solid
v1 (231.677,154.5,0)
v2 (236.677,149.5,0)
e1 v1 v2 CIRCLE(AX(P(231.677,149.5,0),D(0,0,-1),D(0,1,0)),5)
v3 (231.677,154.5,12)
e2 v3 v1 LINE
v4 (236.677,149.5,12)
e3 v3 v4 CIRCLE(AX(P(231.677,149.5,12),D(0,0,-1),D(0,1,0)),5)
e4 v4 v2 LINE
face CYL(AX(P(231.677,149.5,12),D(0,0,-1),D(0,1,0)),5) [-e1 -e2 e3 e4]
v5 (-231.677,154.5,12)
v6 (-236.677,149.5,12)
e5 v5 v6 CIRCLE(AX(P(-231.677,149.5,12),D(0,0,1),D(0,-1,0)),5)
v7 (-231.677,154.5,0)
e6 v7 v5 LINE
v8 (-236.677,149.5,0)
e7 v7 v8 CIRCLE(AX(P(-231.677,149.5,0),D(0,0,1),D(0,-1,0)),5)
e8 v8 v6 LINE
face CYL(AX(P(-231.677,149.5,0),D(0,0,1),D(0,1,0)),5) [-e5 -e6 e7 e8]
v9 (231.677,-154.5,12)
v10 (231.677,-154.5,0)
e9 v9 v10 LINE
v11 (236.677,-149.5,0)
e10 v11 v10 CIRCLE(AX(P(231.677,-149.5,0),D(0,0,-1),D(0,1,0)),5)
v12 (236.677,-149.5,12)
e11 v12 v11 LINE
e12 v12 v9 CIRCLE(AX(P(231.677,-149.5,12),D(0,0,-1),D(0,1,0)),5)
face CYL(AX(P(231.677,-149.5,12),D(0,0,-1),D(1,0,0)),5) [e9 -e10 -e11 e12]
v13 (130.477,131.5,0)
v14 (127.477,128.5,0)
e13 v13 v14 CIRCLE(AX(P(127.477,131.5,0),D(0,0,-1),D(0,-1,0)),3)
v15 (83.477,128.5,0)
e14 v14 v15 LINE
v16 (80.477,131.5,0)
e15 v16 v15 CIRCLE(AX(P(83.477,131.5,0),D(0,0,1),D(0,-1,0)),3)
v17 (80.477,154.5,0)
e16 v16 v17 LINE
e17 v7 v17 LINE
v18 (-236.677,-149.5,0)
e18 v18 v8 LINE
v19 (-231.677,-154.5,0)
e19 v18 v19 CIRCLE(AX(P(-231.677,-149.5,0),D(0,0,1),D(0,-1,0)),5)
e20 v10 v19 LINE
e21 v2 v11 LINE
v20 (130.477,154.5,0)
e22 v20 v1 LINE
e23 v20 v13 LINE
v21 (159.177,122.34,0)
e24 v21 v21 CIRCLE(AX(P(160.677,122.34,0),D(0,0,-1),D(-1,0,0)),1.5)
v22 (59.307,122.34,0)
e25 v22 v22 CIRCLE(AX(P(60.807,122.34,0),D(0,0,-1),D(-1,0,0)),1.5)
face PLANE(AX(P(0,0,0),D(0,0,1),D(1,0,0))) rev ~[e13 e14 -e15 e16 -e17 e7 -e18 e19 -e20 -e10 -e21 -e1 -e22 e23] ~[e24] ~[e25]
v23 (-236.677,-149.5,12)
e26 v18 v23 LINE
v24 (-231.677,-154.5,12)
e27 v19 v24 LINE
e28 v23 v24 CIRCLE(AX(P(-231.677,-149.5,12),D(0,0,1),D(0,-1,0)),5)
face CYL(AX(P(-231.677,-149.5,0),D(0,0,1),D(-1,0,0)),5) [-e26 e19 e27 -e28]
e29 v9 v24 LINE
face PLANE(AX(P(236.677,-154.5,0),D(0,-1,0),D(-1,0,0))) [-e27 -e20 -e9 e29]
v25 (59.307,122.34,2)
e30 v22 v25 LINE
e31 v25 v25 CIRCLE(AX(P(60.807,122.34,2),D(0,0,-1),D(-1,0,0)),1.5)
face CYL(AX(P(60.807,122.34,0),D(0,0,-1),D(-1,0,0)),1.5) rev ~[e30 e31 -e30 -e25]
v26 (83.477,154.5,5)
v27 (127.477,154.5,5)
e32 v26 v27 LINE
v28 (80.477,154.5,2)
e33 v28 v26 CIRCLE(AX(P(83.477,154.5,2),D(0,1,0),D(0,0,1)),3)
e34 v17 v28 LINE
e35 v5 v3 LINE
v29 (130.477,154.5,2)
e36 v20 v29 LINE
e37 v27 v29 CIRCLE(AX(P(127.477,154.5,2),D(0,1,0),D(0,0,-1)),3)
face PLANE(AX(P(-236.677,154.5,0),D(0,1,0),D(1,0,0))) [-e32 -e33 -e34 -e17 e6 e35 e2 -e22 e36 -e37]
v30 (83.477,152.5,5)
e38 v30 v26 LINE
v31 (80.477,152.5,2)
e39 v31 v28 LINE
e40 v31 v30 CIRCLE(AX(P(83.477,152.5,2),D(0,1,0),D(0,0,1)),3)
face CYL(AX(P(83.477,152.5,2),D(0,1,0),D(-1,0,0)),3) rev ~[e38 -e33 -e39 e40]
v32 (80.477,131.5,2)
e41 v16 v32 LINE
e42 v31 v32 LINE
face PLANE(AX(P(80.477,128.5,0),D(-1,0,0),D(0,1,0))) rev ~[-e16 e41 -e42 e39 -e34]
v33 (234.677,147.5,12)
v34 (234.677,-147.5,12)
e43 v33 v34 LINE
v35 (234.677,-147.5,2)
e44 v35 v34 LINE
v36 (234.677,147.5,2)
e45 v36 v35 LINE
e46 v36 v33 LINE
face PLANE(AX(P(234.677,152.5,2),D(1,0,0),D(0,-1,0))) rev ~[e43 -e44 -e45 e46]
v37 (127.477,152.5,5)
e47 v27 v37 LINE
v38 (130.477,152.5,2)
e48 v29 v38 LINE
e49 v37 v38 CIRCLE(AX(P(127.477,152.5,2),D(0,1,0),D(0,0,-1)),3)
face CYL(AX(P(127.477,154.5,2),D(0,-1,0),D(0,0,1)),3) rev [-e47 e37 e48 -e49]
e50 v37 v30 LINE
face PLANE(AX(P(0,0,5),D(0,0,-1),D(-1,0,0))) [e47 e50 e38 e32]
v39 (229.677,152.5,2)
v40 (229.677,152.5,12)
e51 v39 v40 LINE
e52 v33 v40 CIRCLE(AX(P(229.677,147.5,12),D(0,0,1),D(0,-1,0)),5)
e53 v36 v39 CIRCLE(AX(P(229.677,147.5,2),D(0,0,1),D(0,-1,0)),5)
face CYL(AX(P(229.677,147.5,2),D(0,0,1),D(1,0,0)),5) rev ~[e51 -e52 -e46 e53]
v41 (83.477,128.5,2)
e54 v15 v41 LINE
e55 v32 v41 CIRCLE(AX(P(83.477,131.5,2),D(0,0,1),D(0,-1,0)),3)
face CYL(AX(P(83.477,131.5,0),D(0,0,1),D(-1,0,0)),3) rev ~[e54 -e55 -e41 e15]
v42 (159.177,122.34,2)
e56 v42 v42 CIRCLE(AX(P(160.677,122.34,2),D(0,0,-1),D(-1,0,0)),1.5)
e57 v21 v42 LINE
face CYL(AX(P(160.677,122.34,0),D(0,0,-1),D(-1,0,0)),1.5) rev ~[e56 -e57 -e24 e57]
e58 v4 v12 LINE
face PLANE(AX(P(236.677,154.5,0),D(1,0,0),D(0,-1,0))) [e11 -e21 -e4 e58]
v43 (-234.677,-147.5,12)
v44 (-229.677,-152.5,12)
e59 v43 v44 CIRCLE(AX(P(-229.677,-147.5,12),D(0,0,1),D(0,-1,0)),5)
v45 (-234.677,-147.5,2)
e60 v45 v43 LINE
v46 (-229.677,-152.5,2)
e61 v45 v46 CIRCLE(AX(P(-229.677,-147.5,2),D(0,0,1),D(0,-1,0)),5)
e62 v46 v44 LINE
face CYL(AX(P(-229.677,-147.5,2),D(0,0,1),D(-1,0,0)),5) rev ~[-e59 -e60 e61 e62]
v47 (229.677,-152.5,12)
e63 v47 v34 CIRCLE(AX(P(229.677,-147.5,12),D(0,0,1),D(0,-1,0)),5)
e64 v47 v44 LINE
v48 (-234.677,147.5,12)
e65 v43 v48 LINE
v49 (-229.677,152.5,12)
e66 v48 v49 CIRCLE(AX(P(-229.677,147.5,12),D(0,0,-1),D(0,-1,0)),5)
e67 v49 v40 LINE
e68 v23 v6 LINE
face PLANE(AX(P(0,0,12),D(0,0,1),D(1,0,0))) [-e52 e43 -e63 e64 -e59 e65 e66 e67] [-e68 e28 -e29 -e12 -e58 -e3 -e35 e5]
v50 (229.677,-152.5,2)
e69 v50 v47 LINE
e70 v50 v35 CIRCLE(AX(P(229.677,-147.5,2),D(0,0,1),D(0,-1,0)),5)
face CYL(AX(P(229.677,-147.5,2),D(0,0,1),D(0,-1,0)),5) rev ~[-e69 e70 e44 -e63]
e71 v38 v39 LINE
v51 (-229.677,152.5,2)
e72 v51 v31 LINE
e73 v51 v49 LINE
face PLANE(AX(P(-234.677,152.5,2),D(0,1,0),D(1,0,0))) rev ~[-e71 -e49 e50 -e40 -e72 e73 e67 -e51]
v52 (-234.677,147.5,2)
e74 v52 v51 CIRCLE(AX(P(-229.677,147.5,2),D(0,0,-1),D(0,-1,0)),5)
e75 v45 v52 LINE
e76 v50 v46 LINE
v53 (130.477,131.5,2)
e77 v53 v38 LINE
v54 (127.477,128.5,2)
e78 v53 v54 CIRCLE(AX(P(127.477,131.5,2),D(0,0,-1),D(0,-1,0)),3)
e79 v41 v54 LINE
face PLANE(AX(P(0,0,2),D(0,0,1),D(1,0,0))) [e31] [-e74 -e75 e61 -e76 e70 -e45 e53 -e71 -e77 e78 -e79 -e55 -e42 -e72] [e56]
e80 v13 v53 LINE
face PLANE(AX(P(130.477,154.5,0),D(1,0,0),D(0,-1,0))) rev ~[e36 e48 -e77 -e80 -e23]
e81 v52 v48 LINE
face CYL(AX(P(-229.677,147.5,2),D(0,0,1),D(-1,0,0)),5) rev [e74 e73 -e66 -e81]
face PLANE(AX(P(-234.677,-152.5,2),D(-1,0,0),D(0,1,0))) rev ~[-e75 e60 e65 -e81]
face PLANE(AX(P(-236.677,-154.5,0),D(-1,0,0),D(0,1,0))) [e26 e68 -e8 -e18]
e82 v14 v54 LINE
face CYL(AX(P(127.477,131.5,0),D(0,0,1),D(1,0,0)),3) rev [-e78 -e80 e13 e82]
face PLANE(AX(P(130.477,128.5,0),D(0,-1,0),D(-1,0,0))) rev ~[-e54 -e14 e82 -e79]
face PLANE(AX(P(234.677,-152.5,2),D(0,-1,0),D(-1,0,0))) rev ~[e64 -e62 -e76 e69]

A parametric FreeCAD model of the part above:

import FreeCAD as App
import Part
import Sketcher

V = App.Vector
Q = App.Units.Quantity


def edges_at(feature, points):
    """Names of the edges that pass closest to the given points."""
    edges = feature.Shape.Edges
    near = lambda p: min(range(len(edges)), key=lambda i: edges[i].distToShape(Part.Vertex(*p))[0])
    return sorted({f"Edge{near(p) + 1}" for p in points})


def add_polygon(sketch, points):
    """Adds a closed chain of lines whose ends are joined by coincident constraints."""
    first, n = sketch.GeometryCount, len(points)
    for a, b in zip(points, points[1:] + points[:1]):
        sketch.addGeometry(Part.LineSegment(App.Vector(*a, 0), App.Vector(*b, 0)), False)
    for i in range(n):
        sketch.addConstraint(Sketcher.Constraint("Coincident", first + i, 2, first + (i + 1) % n, 1))

doc = App.newDocument("Part")
body = doc.addObject("PartDesign::Body", "Body")

sketch1 = doc.addObject("Sketcher::SketchObject", "Sketch")
body.addObject(sketch1)
sketch1.AttachmentSupport = (doc.XY_Plane, [""])
sketch1.MapMode = "FlatFace"
add_polygon(sketch1, [(237, 154), (-237, 154), (-237, -154), (237, -154)])
sketch1.addConstraint([
    Sketcher.Constraint("Horizontal", 0),
    Sketcher.Constraint("Vertical", 1),
    Sketcher.Constraint("Horizontal", 2),
    Sketcher.Constraint("Vertical", 3),
    Sketcher.Constraint("Symmetric", 0, 2, 2, 2, -1, 1),
    Sketcher.Constraint("DistanceY", 1, 2, 1, 1, Q("309 mm")),
    Sketcher.Constraint("DistanceX", 0, 2, 0, 1, Q("473.354 mm")),
])
pad1 = doc.addObject("PartDesign::Pad", "Pad")
body.addObject(pad1)
pad1.Profile = sketch1
pad1.Length = 2

sketch2 = doc.addObject("Sketcher::SketchObject", "Sketch001")
body.addObject(sketch2)
sketch2.AttachmentSupport = (doc.XY_Plane, [""])
sketch2.MapMode = "FlatFace"
sketch2.AttachmentOffset = App.Placement(V(0, 0, 2), App.Rotation())
add_polygon(sketch2, [(237, 154), (-237, 154), (-237, -154), (237, -154)])
add_polygon(sketch2, [(-235, -152), (-235, 152), (235, 152), (235, -152)])
sketch2.addConstraint([
    Sketcher.Constraint("Horizontal", 0),
    Sketcher.Constraint("Vertical", 1),
    Sketcher.Constraint("Horizontal", 2),
    Sketcher.Constraint("Vertical", 3),
    Sketcher.Constraint("Vertical", 4),
    Sketcher.Constraint("Horizontal", 5),
    Sketcher.Constraint("Vertical", 6),
    Sketcher.Constraint("Horizontal", 7),
    Sketcher.Constraint("Symmetric", 0, 2, 2, 2, -1, 1),
    Sketcher.Constraint("Symmetric", 4, 2, 6, 2, -1, 1),
    Sketcher.Constraint("DistanceX", 0, 2, 4, 2, Q("2 mm")),
    Sketcher.Constraint("DistanceY", 4, 2, 0, 2, Q("2 mm")),
    Sketcher.Constraint("DistanceY", 1, 2, 1, 1, Q("309 mm")),
    Sketcher.Constraint("DistanceX", 0, 2, 0, 1, Q("473.354 mm")),
])
pad2 = doc.addObject("PartDesign::Pad", "Pad001")
body.addObject(pad2)
pad2.Profile = sketch2
pad2.Length = 10
doc.recompute()

fillet = doc.addObject("PartDesign::Fillet", "Fillet")
body.addObject(fillet)
fillet.Base = (pad2, edges_at(pad2, [
    (236.677, -154.5, 6),
    (234.677, -152.5, 7),
    (-236.677, -154.5, 6),
    (-234.677, -152.5, 7),
    (-234.677, 152.5, 7),
    (236.677, 154.5, 6),
    (234.677, 152.5, 7),
    (-236.677, 154.5, 6),
]))
fillet.Radius = 5

sketch3 = doc.addObject("Sketcher::SketchObject", "Sketch002")
body.addObject(sketch3)
sketch3.AttachmentSupport = (doc.XY_Plane, [""])
sketch3.MapMode = "FlatFace"
add_polygon(sketch3, [(80.5, 128.5), (80.5, 154.5), (130.5, 154.5), (130.5, 128.5)])
sketch3.addGeometry(Part.Circle(V(60.8, 122.3, 0), V(0, 0, 1), 1.5), False)
sketch3.addGeometry(Part.Circle(V(160.7, 122.3, 0), V(0, 0, 1), 1.5), False)
sketch3.addConstraint([
    Sketcher.Constraint("Vertical", 0),
    Sketcher.Constraint("Horizontal", 1),
    Sketcher.Constraint("Vertical", 2),
    Sketcher.Constraint("Horizontal", 3),
    Sketcher.Constraint("Equal", 4, 5),
    Sketcher.Constraint("Horizontal", 4, 3, 5, 3),
    Sketcher.Constraint("Diameter", 4, Q("3 mm")),
    Sketcher.Constraint("DistanceX", 1, 1, 1, 2, Q("50 mm")),
    Sketcher.Constraint("DistanceY", 0, 1, 0, 2, Q("26 mm")),
    Sketcher.Constraint("DistanceX", 4, 3, 5, 3, Q("99.87 mm")),
    Sketcher.Constraint("DistanceY", 4, 3, 0, 2, Q("32.16 mm")),
    Sketcher.Constraint("DistanceY", -1, 1, 0, 2, Q("154.5 mm")),
    Sketcher.Constraint("DistanceX", 0, 2, 5, 3, Q("80.2 mm")),
    Sketcher.Constraint("DistanceX", -1, 1, 4, 3, Q("60.807 mm")),
])
pocket1 = doc.addObject("PartDesign::Pocket", "Pocket")
body.addObject(pocket1)
pocket1.Profile = sketch3
pocket1.Length = 5
pocket1.Reversed = True
doc.recompute()

fillet2 = doc.addObject("PartDesign::Fillet", "Fillet001")
body.addObject(fillet2)
fillet2.Base = (pocket1, edges_at(pocket1, [
    (80.477, 128.5, 1),
    (130.477, 128.5, 1),
    (130.477, 153.5, 5),
    (80.477, 153.5, 5),
]))
fillet2.Radius = 3

doc.recompute()
